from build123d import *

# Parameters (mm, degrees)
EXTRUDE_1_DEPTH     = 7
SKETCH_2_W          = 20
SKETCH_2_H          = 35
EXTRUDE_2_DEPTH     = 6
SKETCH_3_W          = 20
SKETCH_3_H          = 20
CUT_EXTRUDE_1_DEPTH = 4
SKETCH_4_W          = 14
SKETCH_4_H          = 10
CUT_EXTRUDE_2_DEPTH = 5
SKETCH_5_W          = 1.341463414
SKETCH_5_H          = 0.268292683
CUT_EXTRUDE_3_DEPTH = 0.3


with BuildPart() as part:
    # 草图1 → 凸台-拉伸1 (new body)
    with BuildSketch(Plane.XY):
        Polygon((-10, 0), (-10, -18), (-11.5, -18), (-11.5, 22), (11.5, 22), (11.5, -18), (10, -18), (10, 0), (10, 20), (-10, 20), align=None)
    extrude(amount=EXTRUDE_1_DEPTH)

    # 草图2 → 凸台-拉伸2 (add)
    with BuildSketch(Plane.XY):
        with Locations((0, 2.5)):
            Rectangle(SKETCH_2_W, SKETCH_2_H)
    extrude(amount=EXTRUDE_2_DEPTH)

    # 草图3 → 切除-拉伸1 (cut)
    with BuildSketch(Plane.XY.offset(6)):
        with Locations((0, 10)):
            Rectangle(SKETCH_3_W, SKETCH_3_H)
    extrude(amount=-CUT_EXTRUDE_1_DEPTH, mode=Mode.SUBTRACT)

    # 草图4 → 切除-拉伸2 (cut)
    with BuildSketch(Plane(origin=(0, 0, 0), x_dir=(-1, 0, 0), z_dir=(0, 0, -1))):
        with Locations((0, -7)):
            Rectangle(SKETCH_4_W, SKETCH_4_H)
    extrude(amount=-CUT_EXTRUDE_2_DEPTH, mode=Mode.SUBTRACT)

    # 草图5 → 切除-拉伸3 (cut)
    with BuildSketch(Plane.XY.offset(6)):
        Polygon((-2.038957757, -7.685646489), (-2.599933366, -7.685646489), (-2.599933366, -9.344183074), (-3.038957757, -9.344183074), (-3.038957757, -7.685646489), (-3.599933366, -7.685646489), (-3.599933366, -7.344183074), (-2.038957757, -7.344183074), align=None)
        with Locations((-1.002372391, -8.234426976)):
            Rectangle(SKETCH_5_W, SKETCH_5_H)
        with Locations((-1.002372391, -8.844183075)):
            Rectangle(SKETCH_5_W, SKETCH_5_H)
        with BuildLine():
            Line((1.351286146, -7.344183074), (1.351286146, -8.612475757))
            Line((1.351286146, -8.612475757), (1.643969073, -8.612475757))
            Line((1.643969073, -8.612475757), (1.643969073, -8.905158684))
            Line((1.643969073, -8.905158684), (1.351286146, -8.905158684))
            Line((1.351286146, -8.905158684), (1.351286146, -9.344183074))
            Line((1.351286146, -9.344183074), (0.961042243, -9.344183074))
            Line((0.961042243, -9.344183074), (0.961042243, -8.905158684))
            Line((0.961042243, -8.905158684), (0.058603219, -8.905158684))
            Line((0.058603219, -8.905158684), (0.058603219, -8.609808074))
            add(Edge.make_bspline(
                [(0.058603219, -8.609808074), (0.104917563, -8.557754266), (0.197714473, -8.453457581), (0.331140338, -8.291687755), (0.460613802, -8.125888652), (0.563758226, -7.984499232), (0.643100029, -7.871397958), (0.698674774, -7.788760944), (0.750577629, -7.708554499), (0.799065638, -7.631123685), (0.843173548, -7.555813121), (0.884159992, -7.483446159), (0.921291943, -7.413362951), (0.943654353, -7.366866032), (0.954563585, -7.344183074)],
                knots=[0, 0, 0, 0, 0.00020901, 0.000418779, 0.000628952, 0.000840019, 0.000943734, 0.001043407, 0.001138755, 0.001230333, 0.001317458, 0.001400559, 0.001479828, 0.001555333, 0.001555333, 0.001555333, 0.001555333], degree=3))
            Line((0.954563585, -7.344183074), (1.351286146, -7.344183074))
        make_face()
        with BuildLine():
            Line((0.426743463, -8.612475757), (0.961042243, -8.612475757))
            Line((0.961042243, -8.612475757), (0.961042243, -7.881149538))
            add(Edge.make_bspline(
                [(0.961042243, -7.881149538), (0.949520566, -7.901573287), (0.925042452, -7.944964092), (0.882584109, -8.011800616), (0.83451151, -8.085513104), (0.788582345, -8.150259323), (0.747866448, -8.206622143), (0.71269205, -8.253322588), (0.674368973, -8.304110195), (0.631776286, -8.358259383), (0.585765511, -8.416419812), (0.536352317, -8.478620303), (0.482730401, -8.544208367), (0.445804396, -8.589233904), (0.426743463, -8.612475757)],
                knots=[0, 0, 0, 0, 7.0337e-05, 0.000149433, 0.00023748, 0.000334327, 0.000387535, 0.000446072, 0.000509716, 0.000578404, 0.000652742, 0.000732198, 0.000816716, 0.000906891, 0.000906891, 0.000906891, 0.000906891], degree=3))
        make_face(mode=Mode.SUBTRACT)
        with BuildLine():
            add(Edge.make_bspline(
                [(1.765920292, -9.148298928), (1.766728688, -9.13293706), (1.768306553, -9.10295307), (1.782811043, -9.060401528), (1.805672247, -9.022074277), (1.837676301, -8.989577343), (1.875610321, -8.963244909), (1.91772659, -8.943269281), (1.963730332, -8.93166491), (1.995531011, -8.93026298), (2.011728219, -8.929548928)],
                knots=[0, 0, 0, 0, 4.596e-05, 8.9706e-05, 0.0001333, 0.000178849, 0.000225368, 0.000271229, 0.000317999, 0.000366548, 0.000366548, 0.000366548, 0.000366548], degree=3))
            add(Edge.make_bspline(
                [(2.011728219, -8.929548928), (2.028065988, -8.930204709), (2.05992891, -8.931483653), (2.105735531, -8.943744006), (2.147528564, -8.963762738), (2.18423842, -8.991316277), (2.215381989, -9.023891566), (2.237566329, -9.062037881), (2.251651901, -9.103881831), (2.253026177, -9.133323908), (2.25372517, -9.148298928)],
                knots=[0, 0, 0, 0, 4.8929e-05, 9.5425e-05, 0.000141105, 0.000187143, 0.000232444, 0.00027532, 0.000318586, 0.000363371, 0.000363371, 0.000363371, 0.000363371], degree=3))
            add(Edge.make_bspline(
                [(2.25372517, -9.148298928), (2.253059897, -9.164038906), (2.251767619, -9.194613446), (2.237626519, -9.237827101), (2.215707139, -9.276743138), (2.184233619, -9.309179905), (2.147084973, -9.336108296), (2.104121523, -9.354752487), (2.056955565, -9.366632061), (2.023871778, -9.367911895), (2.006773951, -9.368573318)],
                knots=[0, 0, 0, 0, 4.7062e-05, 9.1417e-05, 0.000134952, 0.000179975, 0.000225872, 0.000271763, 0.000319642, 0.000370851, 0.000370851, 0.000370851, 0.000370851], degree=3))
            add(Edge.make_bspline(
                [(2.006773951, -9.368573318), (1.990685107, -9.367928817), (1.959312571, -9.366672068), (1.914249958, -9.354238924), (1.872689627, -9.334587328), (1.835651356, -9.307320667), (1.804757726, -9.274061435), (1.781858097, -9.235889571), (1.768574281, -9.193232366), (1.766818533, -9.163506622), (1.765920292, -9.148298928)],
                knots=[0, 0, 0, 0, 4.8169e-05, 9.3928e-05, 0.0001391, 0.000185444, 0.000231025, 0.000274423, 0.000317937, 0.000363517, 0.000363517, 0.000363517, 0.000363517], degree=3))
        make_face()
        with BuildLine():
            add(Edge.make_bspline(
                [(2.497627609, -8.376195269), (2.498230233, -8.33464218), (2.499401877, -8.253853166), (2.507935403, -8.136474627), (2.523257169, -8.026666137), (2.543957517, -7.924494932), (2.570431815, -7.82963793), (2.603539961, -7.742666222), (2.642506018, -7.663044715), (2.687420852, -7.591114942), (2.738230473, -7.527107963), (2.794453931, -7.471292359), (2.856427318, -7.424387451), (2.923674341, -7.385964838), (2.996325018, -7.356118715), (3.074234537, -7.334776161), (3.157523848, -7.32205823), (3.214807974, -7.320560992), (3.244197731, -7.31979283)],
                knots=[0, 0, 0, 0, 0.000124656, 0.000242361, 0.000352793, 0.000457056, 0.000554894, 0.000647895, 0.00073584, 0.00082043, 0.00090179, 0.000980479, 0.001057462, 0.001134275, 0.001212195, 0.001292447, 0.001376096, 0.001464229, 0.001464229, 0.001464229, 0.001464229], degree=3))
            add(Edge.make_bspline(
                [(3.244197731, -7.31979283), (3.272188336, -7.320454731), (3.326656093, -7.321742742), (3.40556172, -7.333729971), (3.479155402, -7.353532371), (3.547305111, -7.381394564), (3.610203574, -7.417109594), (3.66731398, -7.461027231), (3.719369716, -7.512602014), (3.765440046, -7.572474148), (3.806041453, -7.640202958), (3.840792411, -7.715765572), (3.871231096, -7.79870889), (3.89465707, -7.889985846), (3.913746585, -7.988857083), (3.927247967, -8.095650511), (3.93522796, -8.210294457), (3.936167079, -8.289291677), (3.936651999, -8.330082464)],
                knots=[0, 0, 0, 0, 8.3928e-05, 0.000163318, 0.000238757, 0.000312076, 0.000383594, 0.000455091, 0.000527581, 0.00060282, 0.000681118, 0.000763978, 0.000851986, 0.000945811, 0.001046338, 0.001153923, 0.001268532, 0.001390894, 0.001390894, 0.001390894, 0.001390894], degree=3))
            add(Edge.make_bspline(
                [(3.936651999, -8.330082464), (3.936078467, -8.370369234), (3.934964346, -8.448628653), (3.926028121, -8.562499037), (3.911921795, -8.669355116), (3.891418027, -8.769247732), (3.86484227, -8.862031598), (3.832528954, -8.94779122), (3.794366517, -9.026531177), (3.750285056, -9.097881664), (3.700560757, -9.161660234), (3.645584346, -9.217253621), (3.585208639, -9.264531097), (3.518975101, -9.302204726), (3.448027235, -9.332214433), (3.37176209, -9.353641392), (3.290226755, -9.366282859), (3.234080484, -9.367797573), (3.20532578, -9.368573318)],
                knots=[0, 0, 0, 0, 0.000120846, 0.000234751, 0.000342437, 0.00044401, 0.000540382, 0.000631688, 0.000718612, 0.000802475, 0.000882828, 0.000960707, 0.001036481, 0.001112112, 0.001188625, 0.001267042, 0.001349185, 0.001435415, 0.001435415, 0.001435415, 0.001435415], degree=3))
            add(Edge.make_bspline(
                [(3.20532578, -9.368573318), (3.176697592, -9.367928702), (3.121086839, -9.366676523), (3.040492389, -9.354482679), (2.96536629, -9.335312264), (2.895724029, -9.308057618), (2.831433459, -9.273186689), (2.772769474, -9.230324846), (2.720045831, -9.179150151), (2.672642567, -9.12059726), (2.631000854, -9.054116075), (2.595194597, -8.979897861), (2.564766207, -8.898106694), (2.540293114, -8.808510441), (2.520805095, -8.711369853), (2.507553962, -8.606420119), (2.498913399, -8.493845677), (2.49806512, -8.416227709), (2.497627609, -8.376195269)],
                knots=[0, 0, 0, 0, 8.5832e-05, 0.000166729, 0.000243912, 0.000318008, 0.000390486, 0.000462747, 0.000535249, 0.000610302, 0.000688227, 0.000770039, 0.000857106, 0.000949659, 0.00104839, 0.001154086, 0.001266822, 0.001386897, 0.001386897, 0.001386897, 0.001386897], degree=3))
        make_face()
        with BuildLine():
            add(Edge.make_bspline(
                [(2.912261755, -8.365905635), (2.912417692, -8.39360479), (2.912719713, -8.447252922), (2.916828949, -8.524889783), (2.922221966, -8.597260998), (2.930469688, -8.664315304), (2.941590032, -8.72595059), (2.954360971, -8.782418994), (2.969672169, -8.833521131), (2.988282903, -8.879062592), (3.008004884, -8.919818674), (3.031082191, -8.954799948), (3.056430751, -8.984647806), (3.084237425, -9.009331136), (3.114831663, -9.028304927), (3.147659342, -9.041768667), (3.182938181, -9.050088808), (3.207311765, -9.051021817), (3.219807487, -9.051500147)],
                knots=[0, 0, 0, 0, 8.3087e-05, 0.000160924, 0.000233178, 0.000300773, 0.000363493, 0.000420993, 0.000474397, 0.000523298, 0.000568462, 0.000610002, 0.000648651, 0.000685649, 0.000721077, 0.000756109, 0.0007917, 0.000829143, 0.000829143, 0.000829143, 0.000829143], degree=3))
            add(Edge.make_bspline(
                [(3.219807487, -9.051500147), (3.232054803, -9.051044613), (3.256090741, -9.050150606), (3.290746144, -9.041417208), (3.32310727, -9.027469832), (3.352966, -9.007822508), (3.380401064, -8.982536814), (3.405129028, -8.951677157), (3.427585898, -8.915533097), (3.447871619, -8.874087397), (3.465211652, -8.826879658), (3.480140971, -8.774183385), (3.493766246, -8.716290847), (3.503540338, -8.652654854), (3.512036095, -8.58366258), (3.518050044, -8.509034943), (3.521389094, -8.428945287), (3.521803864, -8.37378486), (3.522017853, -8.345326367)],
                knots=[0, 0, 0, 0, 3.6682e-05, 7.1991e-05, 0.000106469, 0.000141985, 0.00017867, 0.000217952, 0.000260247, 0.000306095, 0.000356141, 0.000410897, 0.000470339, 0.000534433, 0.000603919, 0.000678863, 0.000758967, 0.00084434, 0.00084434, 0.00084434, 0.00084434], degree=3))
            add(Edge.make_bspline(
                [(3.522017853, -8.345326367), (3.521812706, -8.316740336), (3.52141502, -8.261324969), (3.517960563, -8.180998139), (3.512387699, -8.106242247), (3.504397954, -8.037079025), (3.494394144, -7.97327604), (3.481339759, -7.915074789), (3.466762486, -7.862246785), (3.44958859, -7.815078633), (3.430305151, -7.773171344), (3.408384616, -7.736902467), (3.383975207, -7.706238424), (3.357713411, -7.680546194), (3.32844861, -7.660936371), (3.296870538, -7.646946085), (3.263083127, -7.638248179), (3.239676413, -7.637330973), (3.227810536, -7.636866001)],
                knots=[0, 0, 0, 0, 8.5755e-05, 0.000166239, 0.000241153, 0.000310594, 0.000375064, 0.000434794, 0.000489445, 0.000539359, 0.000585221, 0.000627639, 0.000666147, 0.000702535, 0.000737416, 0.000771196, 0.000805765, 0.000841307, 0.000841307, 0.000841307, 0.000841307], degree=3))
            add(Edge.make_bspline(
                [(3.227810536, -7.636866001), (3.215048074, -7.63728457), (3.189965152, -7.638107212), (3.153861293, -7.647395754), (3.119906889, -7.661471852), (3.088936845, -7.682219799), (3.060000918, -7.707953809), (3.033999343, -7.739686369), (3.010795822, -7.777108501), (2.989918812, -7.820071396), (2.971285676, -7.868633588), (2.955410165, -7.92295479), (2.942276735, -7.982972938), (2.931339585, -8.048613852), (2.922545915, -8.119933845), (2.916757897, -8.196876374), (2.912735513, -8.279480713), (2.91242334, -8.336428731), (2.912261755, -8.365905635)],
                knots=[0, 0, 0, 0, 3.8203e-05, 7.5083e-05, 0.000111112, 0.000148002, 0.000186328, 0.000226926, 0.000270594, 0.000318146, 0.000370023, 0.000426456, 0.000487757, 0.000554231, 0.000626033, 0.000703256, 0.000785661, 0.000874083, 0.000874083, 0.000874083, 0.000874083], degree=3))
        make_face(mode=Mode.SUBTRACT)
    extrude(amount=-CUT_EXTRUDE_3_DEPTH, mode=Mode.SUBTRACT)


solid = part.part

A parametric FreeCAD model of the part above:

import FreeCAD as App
import Part
import Sketcher
Q = App.Units.Quantity


def add_polygon(sketch, points):
    """Adds a closed chain of lines whose ends are joined by coincident constraints."""
    first, n = sketch.GeometryCount, len(points)
    for a, b in zip(points, points[1:] + points[:1]):
        sketch.addGeometry(Part.LineSegment(App.Vector(*a, 0), App.Vector(*b, 0)), False)
    for i in range(n):
        sketch.addConstraint(Sketcher.Constraint("Coincident", first + i, 2, first + (i + 1) % n, 1))

doc = App.newDocument("Part")
body = doc.addObject("PartDesign::Body", "Body")

sketch1 = body.newObject("Sketcher::SketchObject", "Sketch")
sketch1.AttachmentSupport = (doc.getObject("XY_Plane"), [""])
sketch1.MapMode = "FlatFace"
add_polygon(sketch1, [(-10, -18), (-10, 20), (10, 20), (10, -18), (11.5, -18), (11.5, 22), (-11.5, 22), (-11.5, -18)])
sketch1.addConstraint(Sketcher.Constraint("Vertical", 0))
sketch1.addConstraint(Sketcher.Constraint("Horizontal", 1))
sketch1.addConstraint(Sketcher.Constraint("Vertical", 2))
sketch1.addConstraint(Sketcher.Constraint("Horizontal", 3))
sketch1.addConstraint(Sketcher.Constraint("Vertical", 4))
sketch1.addConstraint(Sketcher.Constraint("Horizontal", 5))
sketch1.addConstraint(Sketcher.Constraint("Vertical", 6))
sketch1.addConstraint(Sketcher.Constraint("Horizontal", 7))
sketch1.addConstraint(Sketcher.Constraint("Symmetric", 3, 2, 6, 2, -2))
sketch1.addConstraint(Sketcher.Constraint("Equal", 3, 7))
sketch1.addConstraint(Sketcher.Constraint("DistanceX", 1, 1, 1, 2, Q("20 mm")))
sketch1.addConstraint(Sketcher.Constraint("DistanceX", 5, 2, 5, 1, Q("23 mm")))
sketch1.addConstraint(Sketcher.Constraint("DistanceY", 0, 1, 0, 2, Q("38 mm")))
sketch1.addConstraint(Sketcher.Constraint("DistanceY", 4, 1, 4, 2, Q("40 mm")))
sketch1.addConstraint(Sketcher.Constraint("DistanceY", -1, 1, 0, 2, Q("20 mm")))
pad1 = body.newObject("PartDesign::Pad", "Pad")
pad1.Profile = sketch1
pad1.Length = 7

sketch2 = body.newObject("Sketcher::SketchObject", "Sketch001")
sketch2.AttachmentSupport = (doc.getObject("XY_Plane"), [""])
sketch2.MapMode = "FlatFace"
add_polygon(sketch2, [(-10, 20), (-10, -15), (10, -15), (10, 20)])
sketch2.addConstraint(Sketcher.Constraint("Vertical", 0))
sketch2.addConstraint(Sketcher.Constraint("Horizontal", 1))
sketch2.addConstraint(Sketcher.Constraint("Vertical", 2))
sketch2.addConstraint(Sketcher.Constraint("Horizontal", 3))
sketch2.addConstraint(Sketcher.Constraint("DistanceX", 1, 1, 1, 2, Q("20 mm")))
sketch2.addConstraint(Sketcher.Constraint("DistanceY", 0, 2, 0, 1, Q("35 mm")))
sketch2.addConstraint(Sketcher.Constraint("DistanceX", 0, 2, -1, 1, Q("10 mm")))
sketch2.addConstraint(Sketcher.Constraint("DistanceY", 0, 2, -1, 1, Q("15 mm")))
pad2 = body.newObject("PartDesign::Pad", "Pad001")
pad2.Profile = sketch2
pad2.Length = 6

sketch3 = body.newObject("Sketcher::SketchObject", "Sketch002")
sketch3.AttachmentSupport = (doc.getObject("XY_Plane"), [""])
sketch3.MapMode = "FlatFace"
sketch3.AttachmentOffset = App.Placement(App.Vector(0, 0, 6), App.Rotation())
add_polygon(sketch3, [(-10, 20), (-10, 0), (10, 0), (10, 20)])
sketch3.addConstraint(Sketcher.Constraint("Vertical", 0))
sketch3.addConstraint(Sketcher.Constraint("Horizontal", 1))
sketch3.addConstraint(Sketcher.Constraint("Vertical", 2))
sketch3.addConstraint(Sketcher.Constraint("Horizontal", 3))
sketch3.addConstraint(Sketcher.Constraint("Symmetric", 0, 2, 1, 2, -1, 1))
sketch3.addConstraint(Sketcher.Constraint("Equal", 3, 0))
sketch3.addConstraint(Sketcher.Constraint("DistanceX", 1, 1, 1, 2, Q("20 mm")))
pocket1 = body.newObject("PartDesign::Pocket", "Pocket")
pocket1.Profile = sketch3
pocket1.Length = 4

sketch4 = body.newObject("Sketcher::SketchObject", "Sketch003")
sketch4.AttachmentSupport = (doc.getObject("XY_Plane"), [""])
sketch4.MapMode = "FlatFace"
add_polygon(sketch4, [(7, -2), (7, -12), (-7, -12), (-7, -2)])
sketch4.addConstraint(Sketcher.Constraint("Vertical", 0))
sketch4.addConstraint(Sketcher.Constraint("Horizontal", 1))
sketch4.addConstraint(Sketcher.Constraint("Vertical", 2))
sketch4.addConstraint(Sketcher.Constraint("Horizontal", 3))
sketch4.addConstraint(Sketcher.Constraint("DistanceX", 1, 2, 1, 1, Q("14 mm")))
sketch4.addConstraint(Sketcher.Constraint("DistanceY", 0, 2, 0, 1, Q("10 mm")))
sketch4.addConstraint(Sketcher.Constraint("DistanceX", -1, 1, 0, 2, Q("7 mm")))
sketch4.addConstraint(Sketcher.Constraint("DistanceY", 0, 2, -1, 1, Q("12 mm")))
pocket2 = body.newObject("PartDesign::Pocket", "Pocket001")
pocket2.Profile = sketch4
pocket2.Length = 5
pocket2.Reversed = True

sketch5 = body.newObject("Sketcher::SketchObject", "Sketch004")
sketch5.AttachmentSupport = (doc.getObject("XY_Plane"), [""])
sketch5.MapMode = "FlatFace"
sketch5.AttachmentOffset = App.Placement(App.Vector(0, 0, 6), App.Rotation())
add_polygon(sketch5, [(-2.599933, -7.685646), (-2.038958, -7.685646), (-2.038958, -7.344183), (-3.599933, -7.344183), (-3.599933, -7.685646), (-3.038958, -7.685646), (-3.038958, -9.344183), (-2.599933, -9.344183)])
add_polygon(sketch5, [(-1.673104, -8.100281), (-1.673104, -8.368573), (-0.331641, -8.368573), (-0.331641, -8.100281)])
add_polygon(sketch5, [(-1.673104, -8.710037), (-1.673104, -8.978329), (-0.331641, -8.978329), (-0.331641, -8.710037)])
sketch5.addGeometry(Part.LineSegment(App.Vector(1.351286, -8.612476, 0), App.Vector(1.351286, -7.344183, 0)), False)
sketch5.addGeometry(Part.LineSegment(App.Vector(1.351286, -7.344183, 0), App.Vector(0.954564, -7.344183, 0)), False)
sketch5.addGeometry(Part.BSplineCurve([App.Vector(0.058603, -8.609808, 0), App.Vector(0.104918, -8.557754, 0), App.Vector(0.197714, -8.453458, 0), App.Vector(0.33114, -8.291688, 0), App.Vector(0.460614, -8.125889, 0), App.Vector(0.563758, -7.984499, 0), App.Vector(0.6431, -7.871398, 0), App.Vector(0.698675, -7.788761, 0), App.Vector(0.750578, -7.708554, 0), App.Vector(0.799066, -7.631124, 0), App.Vector(0.843174, -7.555813, 0), App.Vector(0.88416, -7.483446, 0), App.Vector(0.921292, -7.413363, 0), App.Vector(0.943654, -7.366866, 0), App.Vector(0.954564, -7.344183, 0)], [4, 1, 1, 1, 1, 1, 1, 1, 1, 1, 1, 1, 4], [0, 0.00020901, 0.000418779, 0.000628952, 0.000840019, 0.000943734, 0.001043407, 0.001138755, 0.001230333, 0.001317458, 0.001400559, 0.001479828, 0.001555333], False, 3, [1, 1, 1, 1, 1, 1, 1, 1, 1, 1, 1, 1, 1, 1, 1], False), False)
sketch5.addGeometry(Part.LineSegment(App.Vector(0.058603, -8.609808, 0), App.Vector(0.058603, -8.905159, 0)), False)
sketch5.addGeometry(Part.LineSegment(App.Vector(0.058603, -8.905159, 0), App.Vector(0.961042, -8.905159, 0)), False)
sketch5.addGeometry(Part.LineSegment(App.Vector(0.961042, -8.905159, 0), App.Vector(0.961042, -9.344183, 0)), False)
sketch5.addGeometry(Part.LineSegment(App.Vector(0.961042, -9.344183, 0), App.Vector(1.351286, -9.344183, 0)), False)
sketch5.addGeometry(Part.LineSegment(App.Vector(1.351286, -9.344183, 0), App.Vector(1.351286, -8.905159, 0)), False)
sketch5.addGeometry(Part.LineSegment(App.Vector(1.351286, -8.905159, 0), App.Vector(1.643969, -8.905159, 0)), False)
sketch5.addGeometry(Part.LineSegment(App.Vector(1.643969, -8.905159, 0), App.Vector(1.643969, -8.612476, 0)), False)
sketch5.addGeometry(Part.LineSegment(App.Vector(1.643969, -8.612476, 0), App.Vector(1.351286, -8.612476, 0)), False)
sketch5.addGeometry(Part.BSplineCurve([App.Vector(0.961042, -7.88115, 0), App.Vector(0.949521, -7.901573, 0), App.Vector(0.925042, -7.944964, 0), App.Vector(0.882584, -8.011801, 0), App.Vector(0.834512, -8.085513, 0), App.Vector(0.788582, -8.150259, 0), App.Vector(0.747866, -8.206622, 0), App.Vector(0.712692, -8.253323, 0), App.Vector(0.674369, -8.30411, 0), App.Vector(0.631776, -8.358259, 0), App.Vector(0.585766, -8.41642, 0), App.Vector(0.536352, -8.47862, 0), App.Vector(0.48273, -8.544208, 0), App.Vector(0.445804, -8.589234, 0), App.Vector(0.426743, -8.612476, 0)], [4, 1, 1, 1, 1, 1, 1, 1, 1, 1, 1, 1, 4], [0, 0.000070337, 0.000149433, 0.00023748, 0.000334327, 0.000387535, 0.000446072, 0.000509716, 0.000578404, 0.000652742, 0.000732198, 0.000816716, 0.000906891], False, 3, [1, 1, 1, 1, 1, 1, 1, 1, 1, 1, 1, 1, 1, 1, 1], False), False)
sketch5.addGeometry(Part.LineSegment(App.Vector(0.961042, -7.88115, 0), App.Vector(0.961042, -8.612476, 0)), False)
sketch5.addGeometry(Part.LineSegment(App.Vector(0.961042, -8.612476, 0), App.Vector(0.426743, -8.612476, 0)), False)
sketch5.addGeometry(Part.BSplineCurve([App.Vector(1.76592, -9.148299, 0), App.Vector(1.766729, -9.132937, 0), App.Vector(1.768307, -9.102953, 0), App.Vector(1.782811, -9.060402, 0), App.Vector(1.805672, -9.022074, 0), App.Vector(1.837676, -8.989577, 0), App.Vector(1.87561, -8.963245, 0), App.Vector(1.917727, -8.943269, 0), App.Vector(1.96373, -8.931665, 0), App.Vector(1.995531, -8.930263, 0), App.Vector(2.011728, -8.929549, 0)], [4, 1, 1, 1, 1, 1, 1, 1, 4], [0, 0.00004596, 0.000089706, 0.0001333, 0.000178849, 0.000225368, 0.000271229, 0.000317999, 0.000366548], False, 3, [1, 1, 1, 1, 1, 1, 1, 1, 1, 1, 1], False), False)
sketch5.addGeometry(Part.BSplineCurve([App.Vector(2.006774, -9.368573, 0), App.Vector(1.990685, -9.367929, 0), App.Vector(1.959313, -9.366672, 0), App.Vector(1.91425, -9.354239, 0), App.Vector(1.87269, -9.334587, 0), App.Vector(1.835651, -9.307321, 0), App.Vector(1.804758, -9.274061, 0), App.Vector(1.781858, -9.23589, 0), App.Vector(1.768574, -9.193232, 0), App.Vector(1.766819, -9.163507, 0), App.Vector(1.76592, -9.148299, 0)], [4, 1, 1, 1, 1, 1, 1, 1, 4], [0, 0.000048169, 0.000093928, 0.0001391, 0.000185444, 0.000231025, 0.000274423, 0.000317937, 0.000363517], False, 3, [1, 1, 1, 1, 1, 1, 1, 1, 1, 1, 1], False), False)
sketch5.addGeometry(Part.BSplineCurve([App.Vector(2.253725, -9.148299, 0), App.Vector(2.25306, -9.164039, 0), App.Vector(2.251768, -9.194613, 0), App.Vector(2.237627, -9.237827, 0), App.Vector(2.215707, -9.276743, 0), App.Vector(2.184234, -9.30918, 0), App.Vector(2.147085, -9.336108, 0), App.Vector(2.104122, -9.354752, 0), App.Vector(2.056956, -9.366632, 0), App.Vector(2.023872, -9.367912, 0), App.Vector(2.006774, -9.368573, 0)], [4, 1, 1, 1, 1, 1, 1, 1, 4], [0, 0.000047062, 0.000091417, 0.000134952, 0.000179975, 0.000225872, 0.000271763, 0.000319642, 0.000370851], False, 3, [1, 1, 1, 1, 1, 1, 1, 1, 1, 1, 1], False), False)
sketch5.addGeometry(Part.BSplineCurve([App.Vector(2.011728, -8.929549, 0), App.Vector(2.028066, -8.930205, 0), App.Vector(2.059929, -8.931484, 0), App.Vector(2.105736, -8.943744, 0), App.Vector(2.147529, -8.963763, 0), App.Vector(2.184238, -8.991316, 0), App.Vector(2.215382, -9.023892, 0), App.Vector(2.237566, -9.062038, 0), App.Vector(2.251652, -9.103882, 0), App.Vector(2.253026, -9.133324, 0), App.Vector(2.253725, -9.148299, 0)], [4, 1, 1, 1, 1, 1, 1, 1, 4], [0, 0.000048929, 0.000095425, 0.000141105, 0.000187143, 0.000232444, 0.00027532, 0.000318586, 0.000363371], False, 3, [1, 1, 1, 1, 1, 1, 1, 1, 1, 1, 1], False), False)
sketch5.addGeometry(Part.BSplineCurve([App.Vector(2.497628, -8.376195, 0), App.Vector(2.49823, -8.334642, 0), App.Vector(2.499402, -8.253853, 0), App.Vector(2.507935, -8.136475, 0), App.Vector(2.523257, -8.026666, 0), App.Vector(2.543958, -7.924495, 0), App.Vector(2.570432, -7.829638, 0), App.Vector(2.60354, -7.742666, 0), App.Vector(2.642506, -7.663045, 0), App.Vector(2.687421, -7.591115, 0), App.Vector(2.73823, -7.527108, 0), App.Vector(2.794454, -7.471292, 0), App.Vector(2.856427, -7.424387, 0), App.Vector(2.923674, -7.385965, 0), App.Vector(2.996325, -7.356119, 0), App.Vector(3.074235, -7.334776, 0), App.Vector(3.157524, -7.322058, 0), App.Vector(3.214808, -7.320561, 0), App.Vector(3.244198, -7.319793, 0)], [4, 1, 1, 1, 1, 1, 1, 1, 1, 1, 1, 1, 1, 1, 1, 1, 4], [0, 0.000124656, 0.000242361, 0.000352793, 0.000457056, 0.000554894, 0.000647895, 0.00073584, 0.00082043, 0.00090179, 0.000980479, 0.001057462, 0.001134275, 0.001212195, 0.001292447, 0.001376096, 0.001464229], False, 3, [1, 1, 1, 1, 1, 1, 1, 1, 1, 1, 1, 1, 1, 1, 1, 1, 1, 1, 1], False), False)
sketch5.addGeometry(Part.BSplineCurve([App.Vector(3.205326, -9.368573, 0), App.Vector(3.176698, -9.367929, 0), App.Vector(3.121087, -9.366677, 0), App.Vector(3.040492, -9.354483, 0), App.Vector(2.965366, -9.335312, 0), App.Vector(2.895724, -9.308058, 0), App.Vector(2.831433, -9.273187, 0), App.Vector(2.772769, -9.230325, 0), App.Vector(2.720046, -9.17915, 0), App.Vector(2.672643, -9.120597, 0), App.Vector(2.631001, -9.054116, 0), App.Vector(2.595195, -8.979898, 0), App.Vector(2.564766, -8.898107, 0), App.Vector(2.540293, -8.80851, 0), App.Vector(2.520805, -8.71137, 0), App.Vector(2.507554, -8.60642, 0), App.Vector(2.498913, -8.493846, 0), App.Vector(2.498065, -8.416228, 0), App.Vector(2.497628, -8.376195, 0)], [4, 1, 1, 1, 1, 1, 1, 1, 1, 1, 1, 1, 1, 1, 1, 1, 4], [0, 0.000085832, 0.000166729, 0.000243912, 0.000318008, 0.000390486, 0.000462747, 0.000535249, 0.000610302, 0.000688227, 0.000770039, 0.000857106, 0.000949659, 0.00104839, 0.001154086, 0.001266822, 0.001386897], False, 3, [1, 1, 1, 1, 1, 1, 1, 1, 1, 1, 1, 1, 1, 1, 1, 1, 1, 1, 1], False), False)
sketch5.addGeometry(Part.BSplineCurve([App.Vector(3.936652, -8.330082, 0), App.Vector(3.936078, -8.370369, 0), App.Vector(3.934964, -8.448629, 0), App.Vector(3.926028, -8.562499, 0), App.Vector(3.911922, -8.669355, 0), App.Vector(3.891418, -8.769248, 0), App.Vector(3.864842, -8.862032, 0), App.Vector(3.832529, -8.947791, 0), App.Vector(3.794367, -9.026531, 0), App.Vector(3.750285, -9.097882, 0), App.Vector(3.700561, -9.16166, 0), App.Vector(3.645584, -9.217254, 0), App.Vector(3.585209, -9.264531, 0), App.Vector(3.518975, -9.302205, 0), App.Vector(3.448027, -9.332214, 0), App.Vector(3.371762, -9.353641, 0), App.Vector(3.290227, -9.366283, 0), App.Vector(3.23408, -9.367798, 0), App.Vector(3.205326, -9.368573, 0)], [4, 1, 1, 1, 1, 1, 1, 1, 1, 1, 1, 1, 1, 1, 1, 1, 4], [0, 0.000120846, 0.000234751, 0.000342437, 0.00044401, 0.000540382, 0.000631688, 0.000718612, 0.000802475, 0.000882828, 0.000960707, 0.001036481, 0.001112112, 0.001188625, 0.001267042, 0.001349185, 0.001435415], False, 3, [1, 1, 1, 1, 1, 1, 1, 1, 1, 1, 1, 1, 1, 1, 1, 1, 1, 1, 1], False), False)
sketch5.addGeometry(Part.BSplineCurve([App.Vector(3.244198, -7.319793, 0), App.Vector(3.272188, -7.320455, 0), App.Vector(3.326656, -7.321743, 0), App.Vector(3.405562, -7.33373, 0), App.Vector(3.479155, -7.353532, 0), App.Vector(3.547305, -7.381395, 0), App.Vector(3.610204, -7.41711, 0), App.Vector(3.667314, -7.461027, 0), App.Vector(3.71937, -7.512602, 0), App.Vector(3.76544, -7.572474, 0), App.Vector(3.806041, -7.640203, 0), App.Vector(3.840792, -7.715766, 0), App.Vector(3.871231, -7.798709, 0), App.Vector(3.894657, -7.889986, 0), App.Vector(3.913747, -7.988857, 0), App.Vector(3.927248, -8.095651, 0), App.Vector(3.935228, -8.210294, 0), App.Vector(3.936167, -8.289292, 0), App.Vector(3.936652, -8.330082, 0)], [4, 1, 1, 1, 1, 1, 1, 1, 1, 1, 1, 1, 1, 1, 1, 1, 4], [0, 0.000083928, 0.000163318, 0.000238757, 0.000312076, 0.000383594, 0.000455091, 0.000527581, 0.00060282, 0.000681118, 0.000763978, 0.000851986, 0.000945811, 0.001046338, 0.001153923, 0.001268532, 0.001390894], False, 3, [1, 1, 1, 1, 1, 1, 1, 1, 1, 1, 1, 1, 1, 1, 1, 1, 1, 1, 1], False), False)
sketch5.addGeometry(Part.BSplineCurve([App.Vector(3.227811, -7.636866, 0), App.Vector(3.215048, -7.637285, 0), App.Vector(3.189965, -7.638107, 0), App.Vector(3.153861, -7.647396, 0), App.Vector(3.119907, -7.661472, 0), App.Vector(3.088937, -7.68222, 0), App.Vector(3.060001, -7.707954, 0), App.Vector(3.033999, -7.739686, 0), App.Vector(3.010796, -7.777109, 0), App.Vector(2.989919, -7.820071, 0), App.Vector(2.971286, -7.868634, 0), App.Vector(2.95541, -7.922955, 0), App.Vector(2.942277, -7.982973, 0), App.Vector(2.93134, -8.048614, 0), App.Vector(2.922546, -8.119934, 0), App.Vector(2.916758, -8.196876, 0), App.Vector(2.912736, -8.279481, 0), App.Vector(2.912423, -8.336429, 0), App.Vector(2.912262, -8.365906, 0)], [4, 1, 1, 1, 1, 1, 1, 1, 1, 1, 1, 1, 1, 1, 1, 1, 4], [0, 0.000038203, 0.000075083, 0.000111112, 0.000148002, 0.000186328, 0.000226926, 0.000270594, 0.000318146, 0.000370023, 0.000426456, 0.000487757, 0.000554231, 0.000626033, 0.000703256, 0.000785661, 0.000874083], False, 3, [1, 1, 1, 1, 1, 1, 1, 1, 1, 1, 1, 1, 1, 1, 1, 1, 1, 1, 1], False), False)
sketch5.addGeometry(Part.BSplineCurve([App.Vector(3.522018, -8.345326, 0), App.Vector(3.521813, -8.31674, 0), App.Vector(3.521415, -8.261325, 0), App.Vector(3.517961, -8.180998, 0), App.Vector(3.512388, -8.106242, 0), App.Vector(3.504398, -8.037079, 0), App.Vector(3.494394, -7.973276, 0), App.Vector(3.48134, -7.915075, 0), App.Vector(3.466762, -7.862247, 0), App.Vector(3.449589, -7.815079, 0), App.Vector(3.430305, -7.773171, 0), App.Vector(3.408385, -7.736902, 0), App.Vector(3.383975, -7.706238, 0), App.Vector(3.357713, -7.680546, 0), App.Vector(3.328449, -7.660936, 0), App.Vector(3.296871, -7.646946, 0), App.Vector(3.263083, -7.638248, 0), App.Vector(3.239676, -7.637331, 0), App.Vector(3.227811, -7.636866, 0)], [4, 1, 1, 1, 1, 1, 1, 1, 1, 1, 1, 1, 1, 1, 1, 1, 4], [0, 0.000085755, 0.000166239, 0.000241153, 0.000310594, 0.000375064, 0.000434794, 0.000489445, 0.000539359, 0.000585221, 0.000627639, 0.000666147, 0.000702535, 0.000737416, 0.000771196, 0.000805765, 0.000841307], False, 3, [1, 1, 1, 1, 1, 1, 1, 1, 1, 1, 1, 1, 1, 1, 1, 1, 1, 1, 1], False), False)
sketch5.addGeometry(Part.BSplineCurve([App.Vector(3.219807, -9.0515, 0), App.Vector(3.232055, -9.051045, 0), App.Vector(3.256091, -9.050151, 0), App.Vector(3.290746, -9.041417, 0), App.Vector(3.323107, -9.02747, 0), App.Vector(3.352966, -9.007823, 0), App.Vector(3.380401, -8.982537, 0), App.Vector(3.405129, -8.951677, 0), App.Vector(3.427586, -8.915533, 0), App.Vector(3.447872, -8.874087, 0), App.Vector(3.465212, -8.82688, 0), App.Vector(3.480141, -8.774183, 0), App.Vector(3.493766, -8.716291, 0), App.Vector(3.50354, -8.652655, 0), App.Vector(3.512036, -8.583663, 0), App.Vector(3.51805, -8.509035, 0), App.Vector(3.521389, -8.428945, 0), App.Vector(3.521804, -8.373785, 0), App.Vector(3.522018, -8.345326, 0)], [4, 1, 1, 1, 1, 1, 1, 1, 1, 1, 1, 1, 1, 1, 1, 1, 4], [0, 0.000036682, 0.000071991, 0.000106469, 0.000141985, 0.00017867, 0.000217952, 0.000260247, 0.000306095, 0.000356141, 0.000410897, 0.000470339, 0.000534433, 0.000603919, 0.000678863, 0.000758967, 0.00084434], False, 3, [1, 1, 1, 1, 1, 1, 1, 1, 1, 1, 1, 1, 1, 1, 1, 1, 1, 1, 1], False), False)
sketch5.addGeometry(Part.BSplineCurve([App.Vector(2.912262, -8.365906, 0), App.Vector(2.912418, -8.393605, 0), App.Vector(2.91272, -8.447253, 0), App.Vector(2.916829, -8.52489, 0), App.Vector(2.922222, -8.597261, 0), App.Vector(2.93047, -8.664315, 0), App.Vector(2.94159, -8.725951, 0), App.Vector(2.954361, -8.782419, 0), App.Vector(2.969672, -8.833521, 0), App.Vector(2.988283, -8.879063, 0), App.Vector(3.008005, -8.919819, 0), App.Vector(3.031082, -8.9548, 0), App.Vector(3.056431, -8.984648, 0), App.Vector(3.084237, -9.009331, 0), App.Vector(3.114832, -9.028305, 0), App.Vector(3.147659, -9.041769, 0), App.Vector(3.182938, -9.050089, 0), App.Vector(3.207312, -9.051022, 0), App.Vector(3.219807, -9.0515, 0)], [4, 1, 1, 1, 1, 1, 1, 1, 1, 1, 1, 1, 1, 1, 1, 1, 4], [0, 0.000083087, 0.000160924, 0.000233178, 0.000300773, 0.000363493, 0.000420993, 0.000474397, 0.000523298, 0.000568462, 0.000610002, 0.000648651, 0.000685649, 0.000721077, 0.000756109, 0.0007917, 0.000829143], False, 3, [1, 1, 1, 1, 1, 1, 1, 1, 1, 1, 1, 1, 1, 1, 1, 1, 1, 1, 1], False), False)
sketch5.addConstraint(Sketcher.Constraint("Block", 18))
sketch5.addConstraint(Sketcher.Constraint("Block", 27))
sketch5.addConstraint(Sketcher.Constraint("Block", 30))
sketch5.addConstraint(Sketcher.Constraint("Block", 31))
sketch5.addConstraint(Sketcher.Constraint("Block", 32))
sketch5.addConstraint(Sketcher.Constraint("Block", 33))
sketch5.addConstraint(Sketcher.Constraint("Block", 34))
sketch5.addConstraint(Sketcher.Constraint("Block", 35))
sketch5.addConstraint(Sketcher.Constraint("Block", 36))
sketch5.addConstraint(Sketcher.Constraint("Block", 37))
sketch5.addConstraint(Sketcher.Constraint("Block", 38))
sketch5.addConstraint(Sketcher.Constraint("Block", 39))
sketch5.addConstraint(Sketcher.Constraint("Block", 40))
sketch5.addConstraint(Sketcher.Constraint("Block", 41))
sketch5.addConstraint(Sketcher.Constraint("Coincident", 16, 2, 17, 1))
sketch5.addConstraint(Sketcher.Constraint("Coincident", 17, 2, 18, 2))
sketch5.addConstraint(Sketcher.Constraint("Coincident", 18, 1, 19, 1))
sketch5.addConstraint(Sketcher.Constraint("Coincident", 19, 2, 20, 1))
sketch5.addConstraint(Sketcher.Constraint("Coincident", 20, 2, 21, 1))
sketch5.addConstraint(Sketcher.Constraint("Coincident", 21, 2, 22, 1))
sketch5.addConstraint(Sketcher.Constraint("Coincident", 22, 2, 23, 1))
sketch5.addConstraint(Sketcher.Constraint("Coincident", 23, 2, 24, 1))
sketch5.addConstraint(Sketcher.Constraint("Coincident", 24, 2, 25, 1))
sketch5.addConstraint(Sketcher.Constraint("Coincident", 25, 2, 26, 1))
sketch5.addConstraint(Sketcher.Constraint("Coincident", 26, 2, 16, 1))
sketch5.addConstraint(Sketcher.Constraint("Coincident", 27, 1, 28, 1))
sketch5.addConstraint(Sketcher.Constraint("Coincident", 28, 2, 29, 1))
sketch5.addConstraint(Sketcher.Constraint("Coincident", 29, 2, 27, 2))
sketch5.addConstraint(Sketcher.Constraint("Horizontal", 0))
sketch5.addConstraint(Sketcher.Constraint("Vertical", 1))
sketch5.addConstraint(Sketcher.Constraint("Horizontal", 2))
sketch5.addConstraint(Sketcher.Constraint("Vertical", 3))
sketch5.addConstraint(Sketcher.Constraint("Horizontal", 4))
sketch5.addConstraint(Sketcher.Constraint("Vertical", 5))
sketch5.addConstraint(Sketcher.Constraint("Horizontal", 6))
sketch5.addConstraint(Sketcher.Constraint("Vertical", 7))
sketch5.addConstraint(Sketcher.Constraint("Vertical", 8))
sketch5.addConstraint(Sketcher.Constraint("Horizontal", 9))
sketch5.addConstraint(Sketcher.Constraint("Vertical", 10))
sketch5.addConstraint(Sketcher.Constraint("Horizontal", 11))
sketch5.addConstraint(Sketcher.Constraint("Vertical", 12))
sketch5.addConstraint(Sketcher.Constraint("Horizontal", 13))
sketch5.addConstraint(Sketcher.Constraint("Vertical", 14))
sketch5.addConstraint(Sketcher.Constraint("Horizontal", 15))
sketch5.addConstraint(Sketcher.Constraint("Vertical", 16))
sketch5.addConstraint(Sketcher.Constraint("Horizontal", 17))
sketch5.addConstraint(Sketcher.Constraint("Vertical", 19))
sketch5.addConstraint(Sketcher.Constraint("Horizontal", 20))
sketch5.addConstraint(Sketcher.Constraint("Vertical", 21))
sketch5.addConstraint(Sketcher.Constraint("Horizontal", 22))
sketch5.addConstraint(Sketcher.Constraint("Vertical", 23))
sketch5.addConstraint(Sketcher.Constraint("Horizontal", 24))
sketch5.addConstraint(Sketcher.Constraint("Vertical", 25))
sketch5.addConstraint(Sketcher.Constraint("Horizontal", 26))
sketch5.addConstraint(Sketcher.Constraint("Vertical", 28))
sketch5.addConstraint(Sketcher.Constraint("Horizontal", 29))
sketch5.addConstraint(Sketcher.Constraint("DistanceX", 4, 2, 0, 2, Q("1 mm")))
sketch5.addConstraint(Sketcher.Constraint("DistanceY", 5, 2, 2, 2, Q("2 mm")))
sketch5.addConstraint(Sketcher.Constraint("DistanceX", 3, 2, 6, 2, Q("1 mm")))
sketch5.addConstraint(Sketcher.Constraint("DistanceX", 20, 1, 20, 2, Q("0.902439 mm")))
sketch5.addConstraint(Sketcher.Constraint("DistanceY", 19, 2, 19, 1, Q("0.295351 mm")))
sketch5.addConstraint(Sketcher.Constraint("DistanceX", 0, 1, 0, 2, Q("0.560976 mm")))
sketch5.addConstraint(Sketcher.Constraint("DistanceX", 9, 1, 9, 2, Q("1.341463 mm")))
sketch5.addConstraint(Sketcher.Constraint("DistanceX", 13, 1, 13, 2, Q("1.341463 mm")))
sketch5.addConstraint(Sketcher.Constraint("DistanceX", 17, 2, 17, 1, Q("0.396723 mm")))
sketch5.addConstraint(Sketcher.Constraint("DistanceX", 22, 1, 22, 2, Q("0.390244 mm")))
sketch5.addConstraint(Sketcher.Constraint("DistanceX", 24, 1, 24, 2, Q("0.292683 mm")))
sketch5.addConstraint(Sketcher.Constraint("DistanceY", 1, 1, 1, 2, Q("0.341463 mm")))
sketch5.addConstraint(Sketcher.Constraint("DistanceY", 3, 2, 3, 1, Q("0.341463 mm")))
sketch5.addConstraint(Sketcher.Constraint("DistanceY", 8, 2, 8, 1, Q("0.268293 mm")))
sketch5.addConstraint(Sketcher.Constraint("DistanceY", 12, 2, 12, 1, Q("0.268293 mm")))
sketch5.addConstraint(Sketcher.Constraint("DistanceY", 16, 1, 16, 2, Q("1.268293 mm")))
sketch5.addConstraint(Sketcher.Constraint("DistanceY", 21, 2, 21, 1, Q("0.439024 mm")))
sketch5.addConstraint(Sketcher.Constraint("DistanceY", 23, 1, 23, 2, Q("0.439024 mm")))
sketch5.addConstraint(Sketcher.Constraint("DistanceX", 9, 2, -1, 1, Q("0.331641 mm")))
sketch5.addConstraint(Sketcher.Constraint("DistanceY", 10, 2, -1, 1, Q("8.100281 mm")))
sketch5.addConstraint(Sketcher.Constraint("DistanceY", 12, 2, -1, 1, Q("8.978329 mm")))
sketch5.addConstraint(Sketcher.Constraint("DistanceX", 13, 2, -1, 1, Q("0.331641 mm")))
sketch5.addConstraint(Sketcher.Constraint("DistanceY", 8, 2, 1, 2, Q("1.02439 mm")))
sketch5.addConstraint(Sketcher.Constraint("DistanceX", 7, 2, 8, 2, Q("0.926829 mm")))
pocket3 = body.newObject("PartDesign::Pocket", "Pocket002")
pocket3.Profile = sketch5
pocket3.Length = 0.3

doc.recompute()
